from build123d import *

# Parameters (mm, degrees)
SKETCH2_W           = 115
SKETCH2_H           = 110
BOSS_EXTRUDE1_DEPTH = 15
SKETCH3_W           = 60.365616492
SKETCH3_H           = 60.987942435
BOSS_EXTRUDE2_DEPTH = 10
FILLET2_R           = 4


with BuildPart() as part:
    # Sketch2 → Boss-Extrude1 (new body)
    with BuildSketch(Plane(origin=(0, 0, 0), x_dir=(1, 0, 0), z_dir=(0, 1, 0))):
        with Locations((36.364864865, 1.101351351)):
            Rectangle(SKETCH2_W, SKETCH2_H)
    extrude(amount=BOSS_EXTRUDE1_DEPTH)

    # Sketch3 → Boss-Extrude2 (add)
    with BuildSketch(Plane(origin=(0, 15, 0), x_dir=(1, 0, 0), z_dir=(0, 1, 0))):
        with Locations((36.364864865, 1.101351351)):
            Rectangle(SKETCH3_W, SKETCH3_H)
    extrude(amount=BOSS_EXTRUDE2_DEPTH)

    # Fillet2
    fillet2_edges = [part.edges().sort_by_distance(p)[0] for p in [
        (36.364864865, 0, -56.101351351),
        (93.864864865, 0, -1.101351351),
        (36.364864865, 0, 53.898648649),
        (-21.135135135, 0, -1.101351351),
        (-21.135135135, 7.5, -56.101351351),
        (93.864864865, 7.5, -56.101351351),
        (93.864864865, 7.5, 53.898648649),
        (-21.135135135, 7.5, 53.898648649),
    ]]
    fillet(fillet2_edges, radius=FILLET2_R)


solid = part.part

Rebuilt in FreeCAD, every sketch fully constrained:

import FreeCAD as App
import Part
import Sketcher
from FreeCAD import Vector


def edges_at(feature, points):
    """Names of the edges that pass closest to the given points."""
    edges = feature.Shape.Edges
    near = lambda p: min(range(len(edges)), key=lambda i: edges[i].distToShape(Part.Vertex(*p))[0])
    return sorted({f"Edge{near(p) + 1}" for p in points})

doc = App.newDocument("Part")
params = doc.addObject("Spreadsheet::Sheet", "Params")
for row, (alias, value) in enumerate([
    ("sketch1_width", "115 mm"),
    ("sketch1_height", "110 mm"),
    ("pad1_length", "15 mm"),
    ("pad2_length", "10 mm"),
    ("fillet_radius", "4 mm"),
], start=1):
    params.set(f"A{row}", alias)
    params.set(f"B{row}", "=" + value)
    params.setAlias(f"B{row}", alias)

body = doc.addObject("PartDesign::Body", "Body")

sketch1 = doc.addObject("Sketcher::SketchObject", "Sketch")
body.addObject(sketch1)
sketch1.AttachmentSupport = (doc.XZ_Plane, [""])
sketch1.MapMode = "FlatFace"
sketch1.addGeometry([
    Part.LineSegment(Vector(-21, -56, 0), Vector(-21, 54, 0)),
    Part.LineSegment(Vector(-21, 54, 0), Vector(94, 54, 0)),
    Part.LineSegment(Vector(94, 54, 0), Vector(94, -56, 0)),
    Part.LineSegment(Vector(94, -56, 0), Vector(-21, -56, 0)),
], False)
sketch1.addConstraint([
    Sketcher.Constraint("Coincident", 0, 2, 1, 1),
    Sketcher.Constraint("Coincident", 1, 2, 2, 1),
    Sketcher.Constraint("Coincident", 2, 2, 3, 1),
    Sketcher.Constraint("Coincident", 3, 2, 0, 1),
    Sketcher.Constraint("Vertical", 0),
    Sketcher.Constraint("Horizontal", 1),
    Sketcher.Constraint("Vertical", 2),
    Sketcher.Constraint("Horizontal", 3),
    Sketcher.Constraint("DistanceX", 1, 1, 1, 2, 115.0),
    Sketcher.Constraint("DistanceY", 0, 1, 0, 2, 110.0),
    Sketcher.Constraint("DistanceY", -1, 1, 0, 2, 53.898649),
    Sketcher.Constraint("DistanceX", 0, 2, -1, 1, 21.135135),
])
sketch1.setExpression("Constraints[8]", "Params.sketch1_width")
sketch1.setExpression("Constraints[9]", "Params.sketch1_height")
pad1 = doc.addObject("PartDesign::Pad", "Pad")
body.addObject(pad1)
pad1.Profile = sketch1
pad1.setExpression("Length", "Params.pad1_length")
pad1.Reversed = True

sketch2 = doc.addObject("Sketcher::SketchObject", "Sketch001")
body.addObject(sketch2)
sketch2.AttachmentSupport = (doc.XZ_Plane, [""])
sketch2.MapMode = "FlatFace"
sketch2.AttachmentOffset = App.Placement(Vector(0, 0, -15), App.Rotation())
sketch2.addGeometry([
    Part.LineSegment(Vector(6, -32, 0), Vector(6, 29, 0)),
    Part.LineSegment(Vector(6, 29, 0), Vector(67, 29, 0)),
    Part.LineSegment(Vector(67, 29, 0), Vector(67, -32, 0)),
    Part.LineSegment(Vector(67, -32, 0), Vector(6, -32, 0)),
], False)
sketch2.addConstraint([
    Sketcher.Constraint("Coincident", 0, 2, 1, 1),
    Sketcher.Constraint("Coincident", 1, 2, 2, 1),
    Sketcher.Constraint("Coincident", 2, 2, 3, 1),
    Sketcher.Constraint("Coincident", 3, 2, 0, 1),
    Sketcher.Constraint("Vertical", 0),
    Sketcher.Constraint("Horizontal", 1),
    Sketcher.Constraint("Vertical", 2),
    Sketcher.Constraint("Horizontal", 3),
    Sketcher.Constraint("DistanceX", 1, 1, 1, 2, 60.365616),
    Sketcher.Constraint("DistanceY", 0, 1, 0, 2, 60.987942),
    Sketcher.Constraint("DistanceY", -1, 1, 0, 2, 29.39262),
    Sketcher.Constraint("DistanceX", -1, 1, 0, 2, 6.182057),
])
pad2 = doc.addObject("PartDesign::Pad", "Pad001")
body.addObject(pad2)
pad2.Profile = sketch2
pad2.setExpression("Length", "Params.pad2_length")
pad2.Reversed = True
doc.recompute()

fillet = doc.addObject("PartDesign::Fillet", "Fillet")
body.addObject(fillet)
fillet.Base = (pad2, edges_at(pad2, [
    (36.365, 0, -56.101),
    (93.865, 0, -1.101),
    (36.365, 0, 53.899),
    (-21.135, 0, -1.101),
    (-21.135, 7.5, -56.101),
    (93.865, 7.5, -56.101),
    (93.865, 7.5, 53.899),
    (-21.135, 7.5, 53.899),
]))
fillet.setExpression("Radius", "Params.fillet_radius")

doc.recompute()
